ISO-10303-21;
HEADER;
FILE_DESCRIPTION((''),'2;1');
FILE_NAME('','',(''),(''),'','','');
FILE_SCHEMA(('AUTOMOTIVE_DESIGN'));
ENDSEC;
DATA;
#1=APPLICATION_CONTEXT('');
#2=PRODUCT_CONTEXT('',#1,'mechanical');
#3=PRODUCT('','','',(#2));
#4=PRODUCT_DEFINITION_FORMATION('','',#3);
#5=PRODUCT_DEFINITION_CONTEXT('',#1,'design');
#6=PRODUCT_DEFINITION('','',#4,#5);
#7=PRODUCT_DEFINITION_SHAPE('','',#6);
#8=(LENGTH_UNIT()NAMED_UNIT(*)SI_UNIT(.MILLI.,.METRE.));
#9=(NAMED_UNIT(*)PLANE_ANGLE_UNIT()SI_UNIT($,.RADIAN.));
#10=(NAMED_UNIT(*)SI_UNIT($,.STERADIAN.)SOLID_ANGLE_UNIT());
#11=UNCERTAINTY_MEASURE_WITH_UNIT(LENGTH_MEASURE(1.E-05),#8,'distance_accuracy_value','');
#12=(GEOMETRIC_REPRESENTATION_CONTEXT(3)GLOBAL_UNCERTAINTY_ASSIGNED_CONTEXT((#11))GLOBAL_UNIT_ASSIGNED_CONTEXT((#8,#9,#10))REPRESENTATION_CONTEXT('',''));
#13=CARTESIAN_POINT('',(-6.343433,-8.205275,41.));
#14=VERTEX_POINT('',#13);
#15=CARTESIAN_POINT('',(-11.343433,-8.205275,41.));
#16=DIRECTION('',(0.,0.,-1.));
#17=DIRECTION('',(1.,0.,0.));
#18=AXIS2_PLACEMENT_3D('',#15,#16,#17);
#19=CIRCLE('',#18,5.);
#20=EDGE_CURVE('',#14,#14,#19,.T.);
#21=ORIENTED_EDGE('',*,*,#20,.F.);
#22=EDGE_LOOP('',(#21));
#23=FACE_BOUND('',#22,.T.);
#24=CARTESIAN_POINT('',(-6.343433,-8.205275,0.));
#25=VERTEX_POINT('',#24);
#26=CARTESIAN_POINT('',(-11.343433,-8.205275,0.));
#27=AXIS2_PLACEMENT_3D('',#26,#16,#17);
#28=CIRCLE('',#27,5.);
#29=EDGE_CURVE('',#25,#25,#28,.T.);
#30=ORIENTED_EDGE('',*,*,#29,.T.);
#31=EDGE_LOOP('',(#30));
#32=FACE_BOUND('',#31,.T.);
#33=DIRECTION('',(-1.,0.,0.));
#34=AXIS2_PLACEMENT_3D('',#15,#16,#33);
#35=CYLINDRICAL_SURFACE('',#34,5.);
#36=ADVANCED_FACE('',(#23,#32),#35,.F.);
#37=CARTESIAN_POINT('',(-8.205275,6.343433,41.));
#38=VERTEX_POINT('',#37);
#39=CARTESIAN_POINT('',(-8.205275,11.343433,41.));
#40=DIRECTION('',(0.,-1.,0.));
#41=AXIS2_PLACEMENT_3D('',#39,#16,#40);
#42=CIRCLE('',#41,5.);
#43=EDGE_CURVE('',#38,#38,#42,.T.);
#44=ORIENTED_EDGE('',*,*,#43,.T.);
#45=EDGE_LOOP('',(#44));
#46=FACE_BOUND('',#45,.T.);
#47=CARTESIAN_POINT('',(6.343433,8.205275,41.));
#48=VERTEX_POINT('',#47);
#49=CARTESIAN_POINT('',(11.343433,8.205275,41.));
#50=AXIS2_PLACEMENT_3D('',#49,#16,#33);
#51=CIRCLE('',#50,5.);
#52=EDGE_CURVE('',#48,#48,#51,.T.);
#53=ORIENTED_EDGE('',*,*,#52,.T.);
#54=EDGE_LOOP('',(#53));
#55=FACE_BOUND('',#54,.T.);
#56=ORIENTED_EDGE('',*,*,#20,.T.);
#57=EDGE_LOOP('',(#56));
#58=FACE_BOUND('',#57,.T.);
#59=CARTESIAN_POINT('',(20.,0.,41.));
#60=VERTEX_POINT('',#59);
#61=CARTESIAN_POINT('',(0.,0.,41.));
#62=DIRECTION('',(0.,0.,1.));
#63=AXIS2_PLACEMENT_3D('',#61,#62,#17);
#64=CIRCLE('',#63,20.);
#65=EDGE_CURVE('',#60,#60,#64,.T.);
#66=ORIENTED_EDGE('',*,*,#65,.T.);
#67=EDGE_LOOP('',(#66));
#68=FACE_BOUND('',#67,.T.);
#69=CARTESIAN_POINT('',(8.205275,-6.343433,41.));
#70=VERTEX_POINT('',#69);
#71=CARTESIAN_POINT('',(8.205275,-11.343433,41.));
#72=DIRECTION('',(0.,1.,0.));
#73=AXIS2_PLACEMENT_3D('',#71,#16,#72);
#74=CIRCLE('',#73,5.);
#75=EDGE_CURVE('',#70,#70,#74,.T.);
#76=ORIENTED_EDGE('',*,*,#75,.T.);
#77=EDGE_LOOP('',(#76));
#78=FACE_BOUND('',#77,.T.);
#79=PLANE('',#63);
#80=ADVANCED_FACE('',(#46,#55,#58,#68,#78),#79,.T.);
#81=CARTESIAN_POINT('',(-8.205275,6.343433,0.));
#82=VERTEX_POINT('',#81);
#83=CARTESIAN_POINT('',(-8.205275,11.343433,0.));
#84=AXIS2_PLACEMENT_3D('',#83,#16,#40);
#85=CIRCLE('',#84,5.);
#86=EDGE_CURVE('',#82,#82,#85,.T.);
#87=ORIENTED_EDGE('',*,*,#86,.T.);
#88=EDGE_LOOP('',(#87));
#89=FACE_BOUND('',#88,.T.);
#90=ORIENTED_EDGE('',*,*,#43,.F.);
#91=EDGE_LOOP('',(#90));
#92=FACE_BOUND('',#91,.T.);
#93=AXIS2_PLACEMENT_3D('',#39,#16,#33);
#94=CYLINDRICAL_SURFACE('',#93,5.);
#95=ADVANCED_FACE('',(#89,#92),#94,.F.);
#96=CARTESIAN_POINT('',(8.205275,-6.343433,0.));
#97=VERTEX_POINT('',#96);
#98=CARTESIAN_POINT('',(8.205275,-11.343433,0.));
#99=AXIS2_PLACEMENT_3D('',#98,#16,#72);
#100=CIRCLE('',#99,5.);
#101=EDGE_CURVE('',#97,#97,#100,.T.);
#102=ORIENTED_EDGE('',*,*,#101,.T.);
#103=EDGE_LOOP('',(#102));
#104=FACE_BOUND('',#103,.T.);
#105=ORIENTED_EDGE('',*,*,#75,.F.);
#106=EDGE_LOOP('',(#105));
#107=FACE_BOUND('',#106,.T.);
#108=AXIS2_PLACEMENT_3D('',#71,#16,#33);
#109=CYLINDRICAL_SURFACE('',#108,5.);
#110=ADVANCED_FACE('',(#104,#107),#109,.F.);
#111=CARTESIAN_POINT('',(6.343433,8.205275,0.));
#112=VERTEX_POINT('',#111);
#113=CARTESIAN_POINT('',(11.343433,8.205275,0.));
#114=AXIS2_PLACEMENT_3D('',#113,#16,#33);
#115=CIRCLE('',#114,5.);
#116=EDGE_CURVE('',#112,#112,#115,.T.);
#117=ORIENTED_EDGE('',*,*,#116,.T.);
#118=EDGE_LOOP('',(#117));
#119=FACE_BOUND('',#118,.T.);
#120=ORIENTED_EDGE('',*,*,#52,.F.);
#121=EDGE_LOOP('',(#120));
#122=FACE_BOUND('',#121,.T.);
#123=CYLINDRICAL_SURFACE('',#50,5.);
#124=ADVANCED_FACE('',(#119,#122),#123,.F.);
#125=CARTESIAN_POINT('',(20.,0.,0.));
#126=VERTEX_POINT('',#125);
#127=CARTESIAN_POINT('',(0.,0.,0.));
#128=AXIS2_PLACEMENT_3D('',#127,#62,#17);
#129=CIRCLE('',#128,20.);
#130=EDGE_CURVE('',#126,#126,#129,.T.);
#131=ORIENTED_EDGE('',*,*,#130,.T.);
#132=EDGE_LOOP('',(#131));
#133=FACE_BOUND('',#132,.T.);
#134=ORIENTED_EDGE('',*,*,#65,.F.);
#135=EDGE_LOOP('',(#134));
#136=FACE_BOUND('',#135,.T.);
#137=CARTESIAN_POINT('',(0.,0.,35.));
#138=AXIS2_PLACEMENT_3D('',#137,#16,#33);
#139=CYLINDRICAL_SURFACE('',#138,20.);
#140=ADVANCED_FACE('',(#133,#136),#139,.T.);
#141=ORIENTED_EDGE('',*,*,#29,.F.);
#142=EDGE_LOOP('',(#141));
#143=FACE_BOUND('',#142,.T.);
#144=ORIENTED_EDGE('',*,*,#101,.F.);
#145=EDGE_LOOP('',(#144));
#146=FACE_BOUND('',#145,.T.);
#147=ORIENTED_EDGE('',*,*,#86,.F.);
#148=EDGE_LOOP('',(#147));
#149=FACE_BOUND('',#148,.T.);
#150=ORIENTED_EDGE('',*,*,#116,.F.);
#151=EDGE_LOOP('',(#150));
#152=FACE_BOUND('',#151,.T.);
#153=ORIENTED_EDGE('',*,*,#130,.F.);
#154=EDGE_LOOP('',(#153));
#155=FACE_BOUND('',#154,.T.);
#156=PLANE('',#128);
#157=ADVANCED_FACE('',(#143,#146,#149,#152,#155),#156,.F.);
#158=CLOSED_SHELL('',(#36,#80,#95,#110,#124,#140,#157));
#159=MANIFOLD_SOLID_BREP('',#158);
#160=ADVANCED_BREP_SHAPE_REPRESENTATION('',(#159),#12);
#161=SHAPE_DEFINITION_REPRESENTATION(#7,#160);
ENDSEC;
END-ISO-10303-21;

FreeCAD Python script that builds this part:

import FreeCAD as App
import Part
import Sketcher
from FreeCAD import Vector

doc = App.newDocument("Part")
body = doc.addObject("PartDesign::Body", "Body")

sketch1 = doc.addObject("Sketcher::SketchObject", "Sketch")
body.addObject(sketch1)
sketch1.AttachmentSupport = (doc.XY_Plane, [""])
sketch1.MapMode = "FlatFace"
sketch1.addGeometry(Part.Circle(Vector(0, 0, 0), Vector(0, 0, 1), 20), False)
sketch1.addConstraint(Sketcher.Constraint("Coincident", 0, 3, -1, 1))
sketch1.addConstraint(Sketcher.Constraint("Diameter", 0, 40.0))
pad1 = doc.addObject("PartDesign::Pad", "Pad")
body.addObject(pad1)
pad1.Profile = sketch1
pad1.Length = 35

sketch2 = doc.addObject("Sketcher::SketchObject", "Sketch001")
body.addObject(sketch2)
sketch2.AttachmentSupport = (doc.XY_Plane, [""])
sketch2.MapMode = "FlatFace"
sketch2.AttachmentOffset = App.Placement(Vector(0, 0, 35), App.Rotation())
sketch2.addGeometry(Part.Circle(Vector(0, 0, 0), Vector(0, 0, 1), 20), False)
sketch2.addConstraint(Sketcher.Constraint("Coincident", 0, 3, -1, 1))
sketch2.addConstraint(Sketcher.Constraint("Diameter", 0, 40.0))
pad2 = doc.addObject("PartDesign::Pad", "Pad001")
body.addObject(pad2)
pad2.Profile = sketch2
pad2.Length = 6

sketch3 = doc.addObject("Sketcher::SketchObject", "Sketch002")
body.addObject(sketch3)
sketch3.AttachmentSupport = (doc.XY_Plane, [""])
sketch3.MapMode = "FlatFace"
sketch3.addGeometry(Part.Circle(Vector(11, 8, 0), Vector(0, 0, 1), 5), False)
sketch3.addConstraint(Sketcher.Constraint("Diameter", 0, 10.0))
sketch3.addConstraint(Sketcher.Constraint("DistanceX", -1, 1, 0, 3, 11.343433))
sketch3.addConstraint(Sketcher.Constraint("DistanceY", -1, 1, 0, 3, 8.205275))
pocket1 = doc.addObject("PartDesign::Pocket", "Pocket")
body.addObject(pocket1)
pocket1.Profile = sketch3
pocket1.Type = "ThroughAll"
pocket1.Reversed = True
doc.recompute()

polarpattern = doc.addObject("PartDesign::PolarPattern", "PolarPattern")
body.addObject(polarpattern)
polarpattern.Originals = [pocket1]
polarpattern.Axis = (doc.Z_Axis, [""])
polarpattern.Angle = 360
polarpattern.Occurrences = 4
body.Tip = polarpattern

doc.recompute()
